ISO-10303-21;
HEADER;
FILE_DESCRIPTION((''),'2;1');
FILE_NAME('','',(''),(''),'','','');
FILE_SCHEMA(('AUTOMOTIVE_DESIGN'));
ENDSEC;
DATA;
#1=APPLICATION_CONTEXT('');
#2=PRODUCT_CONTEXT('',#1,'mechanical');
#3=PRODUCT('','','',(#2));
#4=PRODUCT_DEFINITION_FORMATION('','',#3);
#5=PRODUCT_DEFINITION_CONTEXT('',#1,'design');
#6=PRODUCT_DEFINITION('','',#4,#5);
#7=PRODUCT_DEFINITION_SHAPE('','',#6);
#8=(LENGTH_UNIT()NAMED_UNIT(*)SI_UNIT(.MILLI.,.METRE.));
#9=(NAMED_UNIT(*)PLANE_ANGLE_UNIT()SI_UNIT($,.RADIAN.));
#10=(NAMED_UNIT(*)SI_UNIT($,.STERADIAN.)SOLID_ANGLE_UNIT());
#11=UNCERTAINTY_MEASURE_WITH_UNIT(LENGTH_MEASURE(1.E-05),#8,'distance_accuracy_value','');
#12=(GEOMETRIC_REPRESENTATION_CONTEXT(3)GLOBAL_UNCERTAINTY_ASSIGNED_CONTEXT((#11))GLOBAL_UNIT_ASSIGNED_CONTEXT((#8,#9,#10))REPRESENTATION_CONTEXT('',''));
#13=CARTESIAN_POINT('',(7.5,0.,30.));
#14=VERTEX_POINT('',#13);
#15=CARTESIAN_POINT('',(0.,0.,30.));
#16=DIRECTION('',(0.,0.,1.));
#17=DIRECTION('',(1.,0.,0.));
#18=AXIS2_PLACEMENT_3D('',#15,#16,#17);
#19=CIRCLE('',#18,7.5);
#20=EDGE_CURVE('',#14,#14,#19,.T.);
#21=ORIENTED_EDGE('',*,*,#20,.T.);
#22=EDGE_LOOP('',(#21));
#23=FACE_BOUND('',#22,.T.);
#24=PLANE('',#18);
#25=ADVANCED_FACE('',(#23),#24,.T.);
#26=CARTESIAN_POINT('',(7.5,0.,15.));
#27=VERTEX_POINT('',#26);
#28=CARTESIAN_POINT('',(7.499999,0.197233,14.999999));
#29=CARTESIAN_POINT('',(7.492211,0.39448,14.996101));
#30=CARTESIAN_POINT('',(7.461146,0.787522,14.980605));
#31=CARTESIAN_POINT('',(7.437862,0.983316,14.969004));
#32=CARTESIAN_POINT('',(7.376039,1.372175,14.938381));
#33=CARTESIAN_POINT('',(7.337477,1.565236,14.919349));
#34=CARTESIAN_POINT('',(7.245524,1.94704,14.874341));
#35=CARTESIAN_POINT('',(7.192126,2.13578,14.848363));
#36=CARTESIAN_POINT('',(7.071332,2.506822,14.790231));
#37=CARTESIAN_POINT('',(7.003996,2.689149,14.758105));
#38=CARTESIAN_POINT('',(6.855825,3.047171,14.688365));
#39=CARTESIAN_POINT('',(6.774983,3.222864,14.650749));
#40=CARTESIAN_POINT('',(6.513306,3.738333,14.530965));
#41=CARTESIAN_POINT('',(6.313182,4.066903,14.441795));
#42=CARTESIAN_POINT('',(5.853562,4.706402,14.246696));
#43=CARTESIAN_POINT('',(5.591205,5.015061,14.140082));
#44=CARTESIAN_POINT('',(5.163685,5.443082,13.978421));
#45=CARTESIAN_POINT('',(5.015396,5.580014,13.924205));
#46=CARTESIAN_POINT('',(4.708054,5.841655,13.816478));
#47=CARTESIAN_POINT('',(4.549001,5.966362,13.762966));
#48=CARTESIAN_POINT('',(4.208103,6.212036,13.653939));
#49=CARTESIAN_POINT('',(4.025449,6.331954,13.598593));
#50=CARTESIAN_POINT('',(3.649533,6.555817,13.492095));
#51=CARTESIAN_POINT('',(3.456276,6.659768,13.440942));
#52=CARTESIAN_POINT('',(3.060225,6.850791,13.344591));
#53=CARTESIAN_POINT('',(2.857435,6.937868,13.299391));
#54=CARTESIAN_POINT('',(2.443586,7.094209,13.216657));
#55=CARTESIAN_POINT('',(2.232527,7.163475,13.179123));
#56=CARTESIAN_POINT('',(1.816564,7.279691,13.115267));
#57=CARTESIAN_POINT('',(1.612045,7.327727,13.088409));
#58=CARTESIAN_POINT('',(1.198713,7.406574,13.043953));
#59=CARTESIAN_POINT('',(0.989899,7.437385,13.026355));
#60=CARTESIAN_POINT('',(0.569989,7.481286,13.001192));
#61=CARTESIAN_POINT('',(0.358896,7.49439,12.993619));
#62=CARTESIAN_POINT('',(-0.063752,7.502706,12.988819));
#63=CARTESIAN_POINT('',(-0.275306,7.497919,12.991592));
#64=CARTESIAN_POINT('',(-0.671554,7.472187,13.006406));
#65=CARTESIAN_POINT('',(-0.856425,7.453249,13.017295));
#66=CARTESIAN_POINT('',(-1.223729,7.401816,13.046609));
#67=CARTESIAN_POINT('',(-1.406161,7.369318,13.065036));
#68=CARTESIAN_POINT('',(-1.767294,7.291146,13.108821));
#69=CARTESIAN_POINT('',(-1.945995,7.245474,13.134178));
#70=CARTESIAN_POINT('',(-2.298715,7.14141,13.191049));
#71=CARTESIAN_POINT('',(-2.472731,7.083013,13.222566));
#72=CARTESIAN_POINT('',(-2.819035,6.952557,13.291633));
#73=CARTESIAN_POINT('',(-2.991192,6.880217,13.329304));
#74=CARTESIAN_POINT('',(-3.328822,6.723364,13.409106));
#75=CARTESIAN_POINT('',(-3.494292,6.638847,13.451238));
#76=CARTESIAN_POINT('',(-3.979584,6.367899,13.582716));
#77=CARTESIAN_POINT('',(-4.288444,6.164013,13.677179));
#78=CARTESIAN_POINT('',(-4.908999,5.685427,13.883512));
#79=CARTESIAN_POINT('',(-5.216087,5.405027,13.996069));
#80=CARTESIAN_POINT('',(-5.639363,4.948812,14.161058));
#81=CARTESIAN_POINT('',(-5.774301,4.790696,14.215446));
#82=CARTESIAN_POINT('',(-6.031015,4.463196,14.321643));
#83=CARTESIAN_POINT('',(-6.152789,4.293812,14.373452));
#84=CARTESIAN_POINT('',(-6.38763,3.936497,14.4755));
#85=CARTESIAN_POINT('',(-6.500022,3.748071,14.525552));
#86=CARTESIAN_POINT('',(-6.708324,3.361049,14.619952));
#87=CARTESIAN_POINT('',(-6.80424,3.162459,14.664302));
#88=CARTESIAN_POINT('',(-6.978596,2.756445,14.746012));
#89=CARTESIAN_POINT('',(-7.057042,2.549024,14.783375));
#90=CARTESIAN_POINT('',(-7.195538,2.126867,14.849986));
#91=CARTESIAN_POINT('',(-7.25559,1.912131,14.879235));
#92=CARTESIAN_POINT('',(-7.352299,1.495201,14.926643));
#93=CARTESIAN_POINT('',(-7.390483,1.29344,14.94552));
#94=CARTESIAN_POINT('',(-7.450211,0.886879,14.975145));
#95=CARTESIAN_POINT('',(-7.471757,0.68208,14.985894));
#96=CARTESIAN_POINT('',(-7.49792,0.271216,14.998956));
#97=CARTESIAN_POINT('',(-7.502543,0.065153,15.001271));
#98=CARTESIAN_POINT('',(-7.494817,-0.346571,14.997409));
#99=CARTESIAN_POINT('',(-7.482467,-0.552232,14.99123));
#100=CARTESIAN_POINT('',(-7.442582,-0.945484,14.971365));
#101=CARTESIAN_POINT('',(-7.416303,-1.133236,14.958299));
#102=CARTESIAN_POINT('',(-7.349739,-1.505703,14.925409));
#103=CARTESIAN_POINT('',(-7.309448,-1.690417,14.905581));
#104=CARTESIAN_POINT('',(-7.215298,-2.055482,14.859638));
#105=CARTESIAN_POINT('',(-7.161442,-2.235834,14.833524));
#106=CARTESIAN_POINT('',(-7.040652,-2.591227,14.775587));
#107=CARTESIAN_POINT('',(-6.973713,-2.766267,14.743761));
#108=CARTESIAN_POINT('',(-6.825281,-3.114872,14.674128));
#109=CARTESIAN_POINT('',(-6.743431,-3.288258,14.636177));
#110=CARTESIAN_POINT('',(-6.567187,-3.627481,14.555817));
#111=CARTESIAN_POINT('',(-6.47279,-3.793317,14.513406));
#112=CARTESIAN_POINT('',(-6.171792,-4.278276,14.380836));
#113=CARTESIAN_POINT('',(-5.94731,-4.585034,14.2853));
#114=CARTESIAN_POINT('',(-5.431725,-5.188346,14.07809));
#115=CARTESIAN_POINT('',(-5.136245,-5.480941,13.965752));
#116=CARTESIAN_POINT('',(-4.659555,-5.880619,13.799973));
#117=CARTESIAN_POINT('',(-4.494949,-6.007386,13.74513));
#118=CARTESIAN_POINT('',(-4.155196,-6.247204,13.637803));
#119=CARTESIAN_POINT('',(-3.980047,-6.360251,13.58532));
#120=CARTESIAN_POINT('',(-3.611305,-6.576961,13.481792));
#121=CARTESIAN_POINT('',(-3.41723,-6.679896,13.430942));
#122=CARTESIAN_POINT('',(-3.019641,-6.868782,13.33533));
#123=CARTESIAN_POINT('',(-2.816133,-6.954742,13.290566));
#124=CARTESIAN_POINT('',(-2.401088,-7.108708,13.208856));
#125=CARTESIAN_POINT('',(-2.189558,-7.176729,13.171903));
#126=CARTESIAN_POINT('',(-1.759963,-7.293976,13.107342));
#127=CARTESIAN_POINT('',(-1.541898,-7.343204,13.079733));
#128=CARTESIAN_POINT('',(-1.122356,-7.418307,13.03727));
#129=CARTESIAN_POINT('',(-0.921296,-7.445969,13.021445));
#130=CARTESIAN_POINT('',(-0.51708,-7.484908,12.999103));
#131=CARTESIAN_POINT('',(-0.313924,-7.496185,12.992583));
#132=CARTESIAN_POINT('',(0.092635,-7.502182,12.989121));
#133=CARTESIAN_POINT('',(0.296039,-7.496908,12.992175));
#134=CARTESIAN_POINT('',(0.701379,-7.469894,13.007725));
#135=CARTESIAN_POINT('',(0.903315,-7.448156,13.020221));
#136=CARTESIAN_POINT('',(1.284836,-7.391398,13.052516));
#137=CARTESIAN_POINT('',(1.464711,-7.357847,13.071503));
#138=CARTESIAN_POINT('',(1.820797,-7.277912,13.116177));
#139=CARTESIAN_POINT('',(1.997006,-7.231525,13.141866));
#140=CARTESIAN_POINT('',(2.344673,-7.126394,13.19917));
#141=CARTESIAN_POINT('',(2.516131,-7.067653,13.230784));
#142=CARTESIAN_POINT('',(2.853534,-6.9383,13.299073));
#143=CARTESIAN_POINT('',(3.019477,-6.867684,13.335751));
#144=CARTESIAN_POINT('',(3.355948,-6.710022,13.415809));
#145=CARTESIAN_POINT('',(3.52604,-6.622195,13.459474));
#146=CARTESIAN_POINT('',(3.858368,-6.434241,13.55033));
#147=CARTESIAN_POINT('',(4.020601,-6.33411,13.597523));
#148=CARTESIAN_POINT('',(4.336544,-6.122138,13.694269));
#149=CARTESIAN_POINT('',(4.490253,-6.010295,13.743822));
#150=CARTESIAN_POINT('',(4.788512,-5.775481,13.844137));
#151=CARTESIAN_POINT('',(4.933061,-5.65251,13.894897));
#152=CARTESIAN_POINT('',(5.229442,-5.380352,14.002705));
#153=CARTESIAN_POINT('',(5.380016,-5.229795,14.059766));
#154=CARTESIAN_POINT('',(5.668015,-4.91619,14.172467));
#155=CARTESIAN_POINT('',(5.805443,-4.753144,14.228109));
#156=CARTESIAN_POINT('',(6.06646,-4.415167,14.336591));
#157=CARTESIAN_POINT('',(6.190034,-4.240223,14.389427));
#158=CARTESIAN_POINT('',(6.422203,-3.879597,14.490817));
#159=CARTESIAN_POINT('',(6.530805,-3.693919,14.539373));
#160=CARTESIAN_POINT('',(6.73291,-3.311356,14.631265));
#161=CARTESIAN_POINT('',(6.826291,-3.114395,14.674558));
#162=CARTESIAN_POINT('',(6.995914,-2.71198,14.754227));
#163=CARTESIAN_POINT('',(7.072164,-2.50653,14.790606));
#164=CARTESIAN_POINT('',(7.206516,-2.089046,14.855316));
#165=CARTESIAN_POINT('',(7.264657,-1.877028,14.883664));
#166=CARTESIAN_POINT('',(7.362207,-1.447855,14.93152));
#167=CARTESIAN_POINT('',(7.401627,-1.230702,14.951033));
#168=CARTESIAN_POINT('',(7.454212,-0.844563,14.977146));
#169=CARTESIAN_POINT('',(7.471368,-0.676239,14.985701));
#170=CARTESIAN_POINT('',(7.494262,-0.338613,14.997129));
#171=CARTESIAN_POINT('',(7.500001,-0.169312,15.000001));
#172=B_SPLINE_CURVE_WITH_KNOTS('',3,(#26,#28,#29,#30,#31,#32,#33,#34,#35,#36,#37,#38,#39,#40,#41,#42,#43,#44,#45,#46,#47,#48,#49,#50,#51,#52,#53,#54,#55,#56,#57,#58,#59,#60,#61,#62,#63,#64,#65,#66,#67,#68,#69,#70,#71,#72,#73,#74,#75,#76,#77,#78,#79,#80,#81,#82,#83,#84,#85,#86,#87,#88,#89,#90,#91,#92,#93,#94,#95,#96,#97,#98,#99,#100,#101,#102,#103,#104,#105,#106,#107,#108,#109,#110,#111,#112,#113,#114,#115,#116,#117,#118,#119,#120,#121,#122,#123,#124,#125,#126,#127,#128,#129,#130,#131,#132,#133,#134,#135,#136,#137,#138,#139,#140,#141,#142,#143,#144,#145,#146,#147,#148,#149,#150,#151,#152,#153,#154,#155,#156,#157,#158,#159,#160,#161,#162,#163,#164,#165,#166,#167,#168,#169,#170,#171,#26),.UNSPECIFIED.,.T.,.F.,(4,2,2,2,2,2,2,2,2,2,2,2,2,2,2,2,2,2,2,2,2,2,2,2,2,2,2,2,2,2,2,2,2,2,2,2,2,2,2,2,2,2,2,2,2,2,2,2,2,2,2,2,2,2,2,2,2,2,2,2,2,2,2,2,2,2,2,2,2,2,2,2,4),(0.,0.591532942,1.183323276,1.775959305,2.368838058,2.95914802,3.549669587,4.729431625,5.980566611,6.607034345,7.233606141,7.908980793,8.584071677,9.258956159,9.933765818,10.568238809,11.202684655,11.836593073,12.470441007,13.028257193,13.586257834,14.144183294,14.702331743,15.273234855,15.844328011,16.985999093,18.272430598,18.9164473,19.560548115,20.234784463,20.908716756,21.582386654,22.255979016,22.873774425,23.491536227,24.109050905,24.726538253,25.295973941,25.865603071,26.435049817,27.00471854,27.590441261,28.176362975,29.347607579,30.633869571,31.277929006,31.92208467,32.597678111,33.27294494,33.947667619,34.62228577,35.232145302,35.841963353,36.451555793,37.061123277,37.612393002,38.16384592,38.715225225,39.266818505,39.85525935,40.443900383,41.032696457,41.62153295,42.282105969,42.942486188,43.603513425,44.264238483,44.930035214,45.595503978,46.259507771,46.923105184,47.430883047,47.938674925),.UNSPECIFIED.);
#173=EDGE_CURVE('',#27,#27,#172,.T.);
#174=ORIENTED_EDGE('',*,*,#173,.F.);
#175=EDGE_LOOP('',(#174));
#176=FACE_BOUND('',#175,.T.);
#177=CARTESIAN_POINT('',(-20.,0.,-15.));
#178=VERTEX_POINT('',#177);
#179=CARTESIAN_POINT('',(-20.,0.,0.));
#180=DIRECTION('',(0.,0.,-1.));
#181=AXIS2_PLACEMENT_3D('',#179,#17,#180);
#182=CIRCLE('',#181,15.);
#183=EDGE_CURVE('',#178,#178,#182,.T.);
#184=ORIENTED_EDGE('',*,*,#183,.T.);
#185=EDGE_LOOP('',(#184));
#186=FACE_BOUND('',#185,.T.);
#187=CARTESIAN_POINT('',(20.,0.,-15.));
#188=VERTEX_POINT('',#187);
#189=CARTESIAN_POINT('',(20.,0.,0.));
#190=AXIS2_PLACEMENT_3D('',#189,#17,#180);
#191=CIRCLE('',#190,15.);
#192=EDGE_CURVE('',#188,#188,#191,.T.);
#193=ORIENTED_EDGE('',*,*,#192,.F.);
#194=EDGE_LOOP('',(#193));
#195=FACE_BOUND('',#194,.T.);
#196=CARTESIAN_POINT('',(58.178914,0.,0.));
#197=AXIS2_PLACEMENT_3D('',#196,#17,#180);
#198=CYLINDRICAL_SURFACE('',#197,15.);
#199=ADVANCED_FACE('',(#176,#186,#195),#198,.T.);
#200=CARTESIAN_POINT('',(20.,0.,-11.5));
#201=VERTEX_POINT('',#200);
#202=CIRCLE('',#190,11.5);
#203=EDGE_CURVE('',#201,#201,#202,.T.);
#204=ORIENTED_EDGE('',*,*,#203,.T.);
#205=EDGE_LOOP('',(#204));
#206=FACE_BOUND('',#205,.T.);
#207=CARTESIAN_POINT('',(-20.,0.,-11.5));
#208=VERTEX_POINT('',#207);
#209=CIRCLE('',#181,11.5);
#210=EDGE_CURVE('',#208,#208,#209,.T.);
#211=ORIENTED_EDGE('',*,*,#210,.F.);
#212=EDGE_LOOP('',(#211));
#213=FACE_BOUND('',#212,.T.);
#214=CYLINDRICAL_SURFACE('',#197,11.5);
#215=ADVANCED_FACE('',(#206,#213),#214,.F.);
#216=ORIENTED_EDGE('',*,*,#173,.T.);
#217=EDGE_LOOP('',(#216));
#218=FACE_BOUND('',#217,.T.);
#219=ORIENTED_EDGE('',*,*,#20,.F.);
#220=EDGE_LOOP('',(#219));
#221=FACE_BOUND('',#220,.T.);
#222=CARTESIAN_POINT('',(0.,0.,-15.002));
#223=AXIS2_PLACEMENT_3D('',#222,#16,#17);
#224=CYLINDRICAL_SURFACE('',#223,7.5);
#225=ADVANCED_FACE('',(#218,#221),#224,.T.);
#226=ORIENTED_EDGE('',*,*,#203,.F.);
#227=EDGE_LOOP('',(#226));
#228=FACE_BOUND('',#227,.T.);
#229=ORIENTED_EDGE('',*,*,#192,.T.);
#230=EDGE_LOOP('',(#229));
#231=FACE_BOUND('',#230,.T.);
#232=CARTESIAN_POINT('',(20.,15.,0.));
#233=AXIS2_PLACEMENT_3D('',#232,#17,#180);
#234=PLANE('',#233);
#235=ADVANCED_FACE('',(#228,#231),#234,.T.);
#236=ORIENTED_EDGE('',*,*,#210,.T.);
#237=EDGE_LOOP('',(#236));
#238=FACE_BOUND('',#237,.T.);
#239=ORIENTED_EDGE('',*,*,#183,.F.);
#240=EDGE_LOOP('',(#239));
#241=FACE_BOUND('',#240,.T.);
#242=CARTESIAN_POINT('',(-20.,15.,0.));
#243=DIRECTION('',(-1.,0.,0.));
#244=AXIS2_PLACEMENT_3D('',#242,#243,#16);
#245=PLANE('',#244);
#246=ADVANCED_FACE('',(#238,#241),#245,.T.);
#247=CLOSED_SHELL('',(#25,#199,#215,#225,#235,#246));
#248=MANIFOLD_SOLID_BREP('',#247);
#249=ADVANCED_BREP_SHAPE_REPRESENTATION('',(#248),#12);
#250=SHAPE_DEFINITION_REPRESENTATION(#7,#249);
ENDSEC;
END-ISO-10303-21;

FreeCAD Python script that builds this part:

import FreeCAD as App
import Part
import Sketcher
from FreeCAD import Vector
Q = App.Units.Quantity


def add_polygon(sketch, points):
    """Adds a closed chain of lines whose ends are joined by coincident constraints."""
    first, n = sketch.GeometryCount, len(points)
    for a, b in zip(points, points[1:] + points[:1]):
        sketch.addGeometry(Part.LineSegment(App.Vector(*a, 0), App.Vector(*b, 0)), False)
    for i in range(n):
        sketch.addConstraint(Sketcher.Constraint("Coincident", first + i, 2, first + (i + 1) % n, 1))

doc = App.newDocument("Part")
body = doc.addObject("PartDesign::Body", "Body")
body.AllowCompound = True

# Sketch on XY plane
sketch1 = doc.addObject("Sketcher::SketchObject", "Sketch")
body.addObject(sketch1)
sketch1.AttachmentSupport = (doc.XY_Plane, [""])
sketch1.MapMode = "FlatFace"
add_polygon(sketch1, [(-20, 15), (-20, 11.5), (20, 11.5), (20, 15)])  # lines 0-3
sketch1.addConstraint([
    Sketcher.Constraint("Vertical", 0),
    Sketcher.Constraint("Horizontal", 1),
    Sketcher.Constraint("Vertical", 2),
    Sketcher.Constraint("Horizontal", 3),
    Sketcher.Constraint("DistanceX", 1, 1, 1, 2, Q("40 mm")),
    Sketcher.Constraint("DistanceY", 0, 2, 0, 1, Q("3.5 mm")),
    Sketcher.Constraint("DistanceX", 0, 2, -1, 1, Q("20 mm")),
    Sketcher.Constraint("DistanceY", -1, 1, 2, 2, Q("15 mm")),
])
revolution = doc.addObject("PartDesign::Revolution", "Revolution")
body.addObject(revolution)
revolution.Profile = sketch1
revolution.ReferenceAxis = (sketch1, ["H_Axis"])
revolution.Angle = 360

# Sketch on XY plane
sketch2 = doc.addObject("Sketcher::SketchObject", "Sketch001")
body.addObject(sketch2)
sketch2.AttachmentSupport = (doc.XY_Plane, [""])
sketch2.MapMode = "FlatFace"
sketch2.AttachmentOffset = App.Placement(Vector(0, 0, 20), App.Rotation())
sketch2.addGeometry(Part.Circle(Vector(0, 0, 0), Vector(0, 0, 1), 7.5), False)
sketch2.addConstraint([
    Sketcher.Constraint("Coincident", 0, 3, -1, 1),
    Sketcher.Constraint("Diameter", 0, Q("15 mm")),
])
pad1 = doc.addObject("PartDesign::Pad", "Pad")
body.addObject(pad1)
pad1.Profile = sketch2
pad1.Length = 10

# Sketch on XY plane
sketch3 = doc.addObject("Sketcher::SketchObject", "Sketch002")
body.addObject(sketch3)
sketch3.AttachmentSupport = (doc.XY_Plane, [""])
sketch3.MapMode = "FlatFace"
sketch3.AttachmentOffset = App.Placement(Vector(0, 0, 20), App.Rotation())
sketch3.addGeometry(Part.Circle(Vector(0, 0, 0), Vector(0, 0, 1), 7.5), False)
sketch3.addConstraint([
    Sketcher.Constraint("Coincident", 0, 3, -1, 1),
    Sketcher.Constraint("Diameter", 0, Q("15 mm")),
])
pad2 = doc.addObject("PartDesign::Pad", "Pad001")
body.addObject(pad2)
pad2.Profile = sketch3
pad2.Type = "UpToFirst"
pad2.Reversed = True

doc.recompute()
